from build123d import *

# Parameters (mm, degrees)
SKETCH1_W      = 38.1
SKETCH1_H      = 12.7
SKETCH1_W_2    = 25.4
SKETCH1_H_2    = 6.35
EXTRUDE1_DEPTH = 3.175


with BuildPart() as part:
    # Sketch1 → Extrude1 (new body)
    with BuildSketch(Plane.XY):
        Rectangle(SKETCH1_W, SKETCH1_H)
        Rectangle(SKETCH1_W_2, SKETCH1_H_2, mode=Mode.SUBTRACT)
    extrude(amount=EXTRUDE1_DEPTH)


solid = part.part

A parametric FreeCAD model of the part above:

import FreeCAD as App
import Part
import Sketcher

V = App.Vector
Q = App.Units.Quantity

doc = App.newDocument("Part")
params = doc.addObject("Spreadsheet::Sheet", "Params")
for row, (alias, value) in enumerate([
    ("sketch1_width", "1 in"),
    ("sketch1_width2", "1.5 in"),
    ("sketch1_height", "0.5 in"),
    ("sketch1_height2", "0.25 in"),
    ("pad1_length", "0.125 in"),
], start=1):
    params.set(f"A{row}", alias)
    params.set(f"B{row}", "=" + value)
    params.setAlias(f"B{row}", alias)

body = doc.addObject("PartDesign::Body", "Body")

# Sketch on XY plane
sketch1 = doc.addObject("Sketcher::SketchObject", "Sketch")
body.addObject(sketch1)
sketch1.AttachmentSupport = (doc.XY_Plane, [""])
sketch1.MapMode = "FlatFace"
sketch1.addGeometry(Part.LineSegment(V(-19, 6, 0), V(-19, -6, 0)), False)
sketch1.addGeometry(Part.LineSegment(V(-19, -6, 0), V(19, -6, 0)), False)
sketch1.addGeometry(Part.LineSegment(V(19, -6, 0), V(19, 6, 0)), False)
sketch1.addGeometry(Part.LineSegment(V(19, 6, 0), V(-19, 6, 0)), False)
sketch1.addGeometry(Part.LineSegment(V(13, -3, 0), V(-13, -3, 0)), False)
sketch1.addGeometry(Part.LineSegment(V(-13, -3, 0), V(-13, 3, 0)), False)
sketch1.addGeometry(Part.LineSegment(V(-13, 3, 0), V(13, 3, 0)), False)
sketch1.addGeometry(Part.LineSegment(V(13, 3, 0), V(13, -3, 0)), False)
sketch1.addConstraint(Sketcher.Constraint("Coincident", 0, 2, 1, 1))
sketch1.addConstraint(Sketcher.Constraint("Coincident", 1, 2, 2, 1))
sketch1.addConstraint(Sketcher.Constraint("Coincident", 2, 2, 3, 1))
sketch1.addConstraint(Sketcher.Constraint("Coincident", 3, 2, 0, 1))
sketch1.addConstraint(Sketcher.Constraint("Coincident", 4, 2, 5, 1))
sketch1.addConstraint(Sketcher.Constraint("Coincident", 5, 2, 6, 1))
sketch1.addConstraint(Sketcher.Constraint("Coincident", 6, 2, 7, 1))
sketch1.addConstraint(Sketcher.Constraint("Coincident", 7, 2, 4, 1))
sketch1.addConstraint(Sketcher.Constraint("Vertical", 0))
sketch1.addConstraint(Sketcher.Constraint("Horizontal", 1))
sketch1.addConstraint(Sketcher.Constraint("Vertical", 2))
sketch1.addConstraint(Sketcher.Constraint("Horizontal", 3))
sketch1.addConstraint(Sketcher.Constraint("Horizontal", 4))
sketch1.addConstraint(Sketcher.Constraint("Vertical", 5))
sketch1.addConstraint(Sketcher.Constraint("Horizontal", 6))
sketch1.addConstraint(Sketcher.Constraint("Vertical", 7))
sketch1.addConstraint(Sketcher.Constraint("Symmetric", 0, 2, 2, 2, -1, 1))
sketch1.addConstraint(Sketcher.Constraint("Symmetric", 4, 2, 6, 2, -1, 1))
sketch1.addConstraint(Sketcher.Constraint("DistanceX", 4, 2, 4, 1, Q("1 in")))
sketch1.addConstraint(Sketcher.Constraint("DistanceX", 1, 1, 1, 2, Q("1.5 in")))
sketch1.addConstraint(Sketcher.Constraint("DistanceY", 0, 2, 0, 1, Q("0.5 in")))
sketch1.addConstraint(Sketcher.Constraint("DistanceY", 5, 1, 5, 2, Q("0.25 in")))
sketch1.setExpression("Constraints[18]", "Params.sketch1_width")
sketch1.setExpression("Constraints[19]", "Params.sketch1_width2")
sketch1.setExpression("Constraints[20]", "Params.sketch1_height")
sketch1.setExpression("Constraints[21]", "Params.sketch1_height2")
pad1 = doc.addObject("PartDesign::Pad", "Pad")
body.addObject(pad1)
pad1.Profile = sketch1
pad1.setExpression("Length", "Params.pad1_length")

doc.recompute()
